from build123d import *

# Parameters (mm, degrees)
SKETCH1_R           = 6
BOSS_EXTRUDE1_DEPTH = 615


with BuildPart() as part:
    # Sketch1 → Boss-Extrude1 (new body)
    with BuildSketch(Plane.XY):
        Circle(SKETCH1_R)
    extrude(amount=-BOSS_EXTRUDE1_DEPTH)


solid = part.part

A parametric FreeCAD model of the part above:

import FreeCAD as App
import Part
import Sketcher

V = App.Vector

doc = App.newDocument("Part")
body = doc.addObject("PartDesign::Body", "Body")

# Sketch on XY plane
sketch1 = body.newObject("Sketcher::SketchObject", "Sketch")
sketch1.AttachmentSupport = (doc.getObject("XY_Plane"), [""])
sketch1.MapMode = "FlatFace"
sketch1.addGeometry(Part.Circle(V(0, 0, 0), V(0, 0, 1), 6), False)
sketch1.addConstraint(Sketcher.Constraint("Coincident", 0, 3, -1, 1))
sketch1.addConstraint(Sketcher.Constraint("Diameter", 0, 12.0))
pad1 = body.newObject("PartDesign::Pad", "Pad")
pad1.Profile = sketch1
pad1.Length = 615
pad1.Reversed = True

doc.recompute()
